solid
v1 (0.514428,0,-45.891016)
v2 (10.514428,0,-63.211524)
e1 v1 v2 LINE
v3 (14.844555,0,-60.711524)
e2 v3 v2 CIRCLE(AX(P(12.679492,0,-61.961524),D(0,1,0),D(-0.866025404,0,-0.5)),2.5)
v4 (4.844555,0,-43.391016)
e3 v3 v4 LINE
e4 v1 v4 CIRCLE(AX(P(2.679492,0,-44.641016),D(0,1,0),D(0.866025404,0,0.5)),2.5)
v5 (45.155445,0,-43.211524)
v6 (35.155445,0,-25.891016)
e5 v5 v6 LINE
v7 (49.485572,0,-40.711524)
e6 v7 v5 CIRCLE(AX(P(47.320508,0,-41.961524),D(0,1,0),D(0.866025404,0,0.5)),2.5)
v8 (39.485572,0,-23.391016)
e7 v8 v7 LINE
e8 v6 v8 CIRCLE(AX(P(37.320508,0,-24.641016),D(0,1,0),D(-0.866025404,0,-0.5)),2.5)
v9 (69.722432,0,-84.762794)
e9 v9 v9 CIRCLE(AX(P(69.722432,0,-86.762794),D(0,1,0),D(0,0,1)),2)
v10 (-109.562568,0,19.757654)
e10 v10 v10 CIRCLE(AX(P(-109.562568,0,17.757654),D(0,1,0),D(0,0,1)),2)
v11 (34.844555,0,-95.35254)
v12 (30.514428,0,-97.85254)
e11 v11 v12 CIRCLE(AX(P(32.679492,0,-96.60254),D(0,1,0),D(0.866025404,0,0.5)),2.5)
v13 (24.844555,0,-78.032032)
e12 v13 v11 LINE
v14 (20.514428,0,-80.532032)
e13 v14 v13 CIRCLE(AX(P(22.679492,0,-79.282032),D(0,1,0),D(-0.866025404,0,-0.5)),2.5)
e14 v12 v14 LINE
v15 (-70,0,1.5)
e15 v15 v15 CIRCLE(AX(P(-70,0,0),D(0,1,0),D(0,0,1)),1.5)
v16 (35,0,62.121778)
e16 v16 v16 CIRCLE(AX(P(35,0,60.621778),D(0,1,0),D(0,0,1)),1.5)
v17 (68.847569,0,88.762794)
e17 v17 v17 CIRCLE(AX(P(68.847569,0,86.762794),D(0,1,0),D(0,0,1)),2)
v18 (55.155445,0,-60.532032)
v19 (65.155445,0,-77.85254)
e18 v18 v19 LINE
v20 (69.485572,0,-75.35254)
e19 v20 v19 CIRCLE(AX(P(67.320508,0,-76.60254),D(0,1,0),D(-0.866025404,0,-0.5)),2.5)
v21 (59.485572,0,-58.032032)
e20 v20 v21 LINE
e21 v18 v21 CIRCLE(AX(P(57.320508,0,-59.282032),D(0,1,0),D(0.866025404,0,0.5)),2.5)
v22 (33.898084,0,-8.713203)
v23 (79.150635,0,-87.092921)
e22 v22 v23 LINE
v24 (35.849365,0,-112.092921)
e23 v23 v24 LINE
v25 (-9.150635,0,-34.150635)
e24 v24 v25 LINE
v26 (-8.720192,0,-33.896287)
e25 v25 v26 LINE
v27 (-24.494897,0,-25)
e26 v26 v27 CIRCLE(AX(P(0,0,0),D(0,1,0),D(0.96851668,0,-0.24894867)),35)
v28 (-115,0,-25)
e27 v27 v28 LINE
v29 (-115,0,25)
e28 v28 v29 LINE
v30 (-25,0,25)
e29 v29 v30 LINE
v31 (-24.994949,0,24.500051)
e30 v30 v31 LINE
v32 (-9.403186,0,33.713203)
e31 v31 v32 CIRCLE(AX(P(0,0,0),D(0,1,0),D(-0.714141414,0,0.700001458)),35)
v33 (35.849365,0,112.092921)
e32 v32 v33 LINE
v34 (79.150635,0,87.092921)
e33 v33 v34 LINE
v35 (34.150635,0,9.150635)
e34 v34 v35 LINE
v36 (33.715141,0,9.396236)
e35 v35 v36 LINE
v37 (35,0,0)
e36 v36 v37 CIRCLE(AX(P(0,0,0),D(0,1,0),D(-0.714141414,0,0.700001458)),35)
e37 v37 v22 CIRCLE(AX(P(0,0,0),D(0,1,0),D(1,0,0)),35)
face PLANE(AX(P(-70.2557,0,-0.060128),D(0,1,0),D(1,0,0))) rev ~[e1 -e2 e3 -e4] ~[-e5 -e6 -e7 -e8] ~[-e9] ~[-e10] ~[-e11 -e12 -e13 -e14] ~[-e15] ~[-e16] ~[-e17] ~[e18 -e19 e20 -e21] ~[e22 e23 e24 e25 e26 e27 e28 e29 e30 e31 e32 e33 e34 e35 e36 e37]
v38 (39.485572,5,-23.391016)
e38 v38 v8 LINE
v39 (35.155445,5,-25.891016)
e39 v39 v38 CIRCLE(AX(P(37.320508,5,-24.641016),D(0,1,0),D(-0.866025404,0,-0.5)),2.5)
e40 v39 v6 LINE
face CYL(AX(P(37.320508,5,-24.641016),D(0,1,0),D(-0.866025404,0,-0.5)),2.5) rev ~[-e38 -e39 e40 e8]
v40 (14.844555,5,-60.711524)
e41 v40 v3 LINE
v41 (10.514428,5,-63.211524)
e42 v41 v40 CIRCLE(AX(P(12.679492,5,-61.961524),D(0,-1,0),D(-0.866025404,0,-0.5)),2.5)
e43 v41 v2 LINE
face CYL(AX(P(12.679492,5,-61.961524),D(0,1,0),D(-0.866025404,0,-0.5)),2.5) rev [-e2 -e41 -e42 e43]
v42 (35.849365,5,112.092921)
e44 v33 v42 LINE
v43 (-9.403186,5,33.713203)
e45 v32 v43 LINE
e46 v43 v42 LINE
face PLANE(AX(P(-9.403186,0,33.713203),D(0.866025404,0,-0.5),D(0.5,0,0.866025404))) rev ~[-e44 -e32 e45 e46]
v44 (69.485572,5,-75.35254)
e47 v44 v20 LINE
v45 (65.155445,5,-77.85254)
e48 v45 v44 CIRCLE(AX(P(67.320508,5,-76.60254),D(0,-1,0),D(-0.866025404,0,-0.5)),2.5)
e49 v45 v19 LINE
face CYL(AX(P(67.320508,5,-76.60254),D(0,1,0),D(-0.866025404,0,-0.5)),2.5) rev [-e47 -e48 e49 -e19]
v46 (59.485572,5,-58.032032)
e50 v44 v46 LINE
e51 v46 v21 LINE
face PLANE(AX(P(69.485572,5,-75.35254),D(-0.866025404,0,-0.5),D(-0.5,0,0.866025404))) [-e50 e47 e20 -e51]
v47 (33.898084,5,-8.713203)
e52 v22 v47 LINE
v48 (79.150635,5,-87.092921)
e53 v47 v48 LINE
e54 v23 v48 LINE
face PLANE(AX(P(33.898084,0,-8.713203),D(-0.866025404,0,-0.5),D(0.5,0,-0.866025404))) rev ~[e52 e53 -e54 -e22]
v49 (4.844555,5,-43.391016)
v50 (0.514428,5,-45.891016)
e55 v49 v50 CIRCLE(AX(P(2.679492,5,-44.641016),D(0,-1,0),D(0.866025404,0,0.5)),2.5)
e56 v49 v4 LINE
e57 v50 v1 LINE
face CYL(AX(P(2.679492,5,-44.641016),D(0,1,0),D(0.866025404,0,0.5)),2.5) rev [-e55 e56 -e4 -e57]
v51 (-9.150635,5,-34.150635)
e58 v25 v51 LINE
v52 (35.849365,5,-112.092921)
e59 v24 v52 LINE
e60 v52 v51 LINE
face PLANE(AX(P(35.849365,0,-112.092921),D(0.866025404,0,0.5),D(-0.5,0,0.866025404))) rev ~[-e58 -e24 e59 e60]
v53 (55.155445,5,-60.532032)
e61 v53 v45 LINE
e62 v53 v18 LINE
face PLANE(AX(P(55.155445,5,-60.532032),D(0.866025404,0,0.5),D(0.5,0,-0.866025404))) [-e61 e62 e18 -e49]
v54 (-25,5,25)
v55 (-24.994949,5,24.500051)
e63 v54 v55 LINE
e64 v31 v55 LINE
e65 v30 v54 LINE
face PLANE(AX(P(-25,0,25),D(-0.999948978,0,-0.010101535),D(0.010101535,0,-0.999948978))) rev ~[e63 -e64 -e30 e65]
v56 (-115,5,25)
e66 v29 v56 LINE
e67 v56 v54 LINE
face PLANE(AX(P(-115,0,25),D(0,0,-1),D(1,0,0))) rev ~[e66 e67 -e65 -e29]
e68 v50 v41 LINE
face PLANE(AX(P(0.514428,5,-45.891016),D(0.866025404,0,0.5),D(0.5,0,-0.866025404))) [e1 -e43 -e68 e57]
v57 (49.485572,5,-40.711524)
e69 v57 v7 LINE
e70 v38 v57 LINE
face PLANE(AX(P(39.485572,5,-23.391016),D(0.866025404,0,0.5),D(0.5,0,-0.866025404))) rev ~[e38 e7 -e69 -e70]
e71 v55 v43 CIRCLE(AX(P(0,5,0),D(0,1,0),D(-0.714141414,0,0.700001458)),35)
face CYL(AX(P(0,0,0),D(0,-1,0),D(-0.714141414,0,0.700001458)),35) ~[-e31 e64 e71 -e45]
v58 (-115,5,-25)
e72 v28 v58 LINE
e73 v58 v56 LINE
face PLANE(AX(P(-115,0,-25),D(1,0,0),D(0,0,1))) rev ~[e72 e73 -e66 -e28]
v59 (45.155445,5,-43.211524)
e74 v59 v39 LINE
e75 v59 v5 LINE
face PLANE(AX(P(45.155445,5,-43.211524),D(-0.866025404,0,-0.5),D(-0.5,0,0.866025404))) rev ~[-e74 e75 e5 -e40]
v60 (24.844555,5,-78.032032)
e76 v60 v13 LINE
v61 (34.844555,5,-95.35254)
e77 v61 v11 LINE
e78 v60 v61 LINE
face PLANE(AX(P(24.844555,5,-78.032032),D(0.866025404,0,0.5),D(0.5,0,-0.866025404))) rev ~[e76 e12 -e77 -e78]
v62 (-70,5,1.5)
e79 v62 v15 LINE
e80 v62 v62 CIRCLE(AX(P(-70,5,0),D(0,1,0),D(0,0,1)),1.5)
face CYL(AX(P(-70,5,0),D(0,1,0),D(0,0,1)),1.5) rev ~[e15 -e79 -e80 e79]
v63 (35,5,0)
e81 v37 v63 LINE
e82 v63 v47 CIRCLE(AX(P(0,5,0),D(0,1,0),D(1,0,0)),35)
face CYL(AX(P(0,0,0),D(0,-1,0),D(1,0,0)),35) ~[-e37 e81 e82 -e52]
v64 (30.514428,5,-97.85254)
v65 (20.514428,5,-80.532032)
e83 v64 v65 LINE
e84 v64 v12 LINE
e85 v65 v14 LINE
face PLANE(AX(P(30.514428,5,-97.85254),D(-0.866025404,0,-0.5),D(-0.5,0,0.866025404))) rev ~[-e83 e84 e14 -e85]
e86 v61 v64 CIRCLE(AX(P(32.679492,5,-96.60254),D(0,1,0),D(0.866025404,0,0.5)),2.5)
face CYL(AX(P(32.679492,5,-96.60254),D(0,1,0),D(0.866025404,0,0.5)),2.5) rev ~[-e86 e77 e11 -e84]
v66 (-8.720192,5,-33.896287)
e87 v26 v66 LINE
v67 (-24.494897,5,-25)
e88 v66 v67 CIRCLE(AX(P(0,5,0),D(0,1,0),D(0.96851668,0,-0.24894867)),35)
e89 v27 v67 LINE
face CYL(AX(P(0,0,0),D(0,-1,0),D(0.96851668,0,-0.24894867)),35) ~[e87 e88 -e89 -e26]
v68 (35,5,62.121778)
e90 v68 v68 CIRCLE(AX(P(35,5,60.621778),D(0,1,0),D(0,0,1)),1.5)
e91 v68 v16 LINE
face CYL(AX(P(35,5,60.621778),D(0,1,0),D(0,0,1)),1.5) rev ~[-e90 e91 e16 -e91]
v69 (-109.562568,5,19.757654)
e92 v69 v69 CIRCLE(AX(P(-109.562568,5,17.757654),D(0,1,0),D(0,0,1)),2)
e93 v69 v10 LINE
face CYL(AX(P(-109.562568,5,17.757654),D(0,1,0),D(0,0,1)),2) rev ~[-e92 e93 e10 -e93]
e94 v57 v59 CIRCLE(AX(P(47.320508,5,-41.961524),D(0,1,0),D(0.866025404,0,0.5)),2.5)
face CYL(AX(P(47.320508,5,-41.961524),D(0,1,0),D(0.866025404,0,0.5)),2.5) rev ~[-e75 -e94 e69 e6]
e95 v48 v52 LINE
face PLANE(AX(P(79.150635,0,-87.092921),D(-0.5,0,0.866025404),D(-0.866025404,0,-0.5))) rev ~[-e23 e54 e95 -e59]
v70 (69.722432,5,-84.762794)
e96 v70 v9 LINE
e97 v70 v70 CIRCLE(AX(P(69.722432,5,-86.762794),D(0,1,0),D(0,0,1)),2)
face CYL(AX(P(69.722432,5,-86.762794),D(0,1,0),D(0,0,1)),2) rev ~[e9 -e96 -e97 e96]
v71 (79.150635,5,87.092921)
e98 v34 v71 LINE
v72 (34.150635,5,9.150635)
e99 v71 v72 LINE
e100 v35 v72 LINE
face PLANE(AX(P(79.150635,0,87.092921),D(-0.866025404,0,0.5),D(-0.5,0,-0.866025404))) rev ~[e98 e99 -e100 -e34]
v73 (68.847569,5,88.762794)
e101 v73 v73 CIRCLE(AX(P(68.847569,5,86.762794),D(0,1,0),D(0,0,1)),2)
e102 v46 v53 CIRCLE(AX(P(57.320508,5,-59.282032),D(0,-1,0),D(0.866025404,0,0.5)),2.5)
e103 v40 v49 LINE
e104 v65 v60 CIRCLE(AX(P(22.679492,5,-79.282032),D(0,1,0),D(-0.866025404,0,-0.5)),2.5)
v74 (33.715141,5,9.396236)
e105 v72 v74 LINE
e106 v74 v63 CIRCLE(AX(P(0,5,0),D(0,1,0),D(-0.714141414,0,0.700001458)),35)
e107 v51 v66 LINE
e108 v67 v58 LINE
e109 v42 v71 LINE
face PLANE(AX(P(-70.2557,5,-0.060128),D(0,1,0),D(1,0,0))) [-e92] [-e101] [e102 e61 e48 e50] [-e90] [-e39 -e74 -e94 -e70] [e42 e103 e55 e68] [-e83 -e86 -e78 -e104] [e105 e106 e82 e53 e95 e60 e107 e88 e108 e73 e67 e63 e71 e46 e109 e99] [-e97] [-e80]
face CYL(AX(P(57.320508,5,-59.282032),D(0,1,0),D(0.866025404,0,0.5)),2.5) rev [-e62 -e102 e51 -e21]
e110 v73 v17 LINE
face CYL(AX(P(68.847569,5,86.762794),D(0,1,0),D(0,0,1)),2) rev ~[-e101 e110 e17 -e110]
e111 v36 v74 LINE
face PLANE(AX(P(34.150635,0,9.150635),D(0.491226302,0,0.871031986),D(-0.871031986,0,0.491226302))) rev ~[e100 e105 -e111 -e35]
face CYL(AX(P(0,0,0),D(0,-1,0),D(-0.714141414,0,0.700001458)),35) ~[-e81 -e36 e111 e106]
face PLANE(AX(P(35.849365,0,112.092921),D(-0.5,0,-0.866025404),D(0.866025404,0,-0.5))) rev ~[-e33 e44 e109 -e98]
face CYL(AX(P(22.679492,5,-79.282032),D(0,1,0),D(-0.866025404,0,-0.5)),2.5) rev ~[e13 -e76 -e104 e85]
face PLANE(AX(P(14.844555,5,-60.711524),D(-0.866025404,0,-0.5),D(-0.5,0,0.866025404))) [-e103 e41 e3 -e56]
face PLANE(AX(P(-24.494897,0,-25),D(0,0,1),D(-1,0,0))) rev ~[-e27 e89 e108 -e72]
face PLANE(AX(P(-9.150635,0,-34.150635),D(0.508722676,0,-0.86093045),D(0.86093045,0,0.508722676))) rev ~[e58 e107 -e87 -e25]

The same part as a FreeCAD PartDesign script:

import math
import FreeCAD as App
import Part
import Sketcher
Q = App.Units.Quantity

doc = App.newDocument("Part")
body = doc.addObject("PartDesign::Body", "Body")

sketch1 = body.newObject("Sketcher::SketchObject", "Sketch")
sketch1.AttachmentSupport = (doc.getObject("XZ_Plane"), [""])
sketch1.MapMode = "FlatFace"
sketch1.addGeometry(Part.LineSegment(App.Vector(-115, -25, 0), App.Vector(-115, 25, 0)), False)
sketch1.addGeometry(Part.LineSegment(App.Vector(-115, 25, 0), App.Vector(-25, 25, 0)), False)
sketch1.addGeometry(Part.LineSegment(App.Vector(-25, 25, 0), App.Vector(-24.99, 24.5, 0)), False)
sketch1.addGeometry(Part.ArcOfCircle(Part.Circle(App.Vector(0, 0, 0), App.Vector(0, 0, 1), 35), math.radians(106), math.radians(136)), False)
sketch1.addGeometry(Part.LineSegment(App.Vector(-9.4, 33.71, 0), App.Vector(35.85, 112.09, 0)), False)
sketch1.addGeometry(Part.LineSegment(App.Vector(35.85, 112.09, 0), App.Vector(79.15, 87.09, 0)), False)
sketch1.addGeometry(Part.LineSegment(App.Vector(79.15, 87.09, 0), App.Vector(34.15, 9.15, 0)), False)
sketch1.addGeometry(Part.LineSegment(App.Vector(34.15, 9.15, 0), App.Vector(33.72, 9.4, 0)), False)
sketch1.addGeometry(Part.ArcOfCircle(Part.Circle(App.Vector(0, 0, 0), App.Vector(0, 0, 1), 35), math.radians(0), math.radians(15.57)), False)
sketch1.addGeometry(Part.ArcOfCircle(Part.Circle(App.Vector(0, 0, 0), App.Vector(0, 0, 1), 35), math.radians(-14.42), math.radians(0)), False)
sketch1.addGeometry(Part.LineSegment(App.Vector(33.9, -8.71, 0), App.Vector(79.15, -87.09, 0)), False)
sketch1.addGeometry(Part.LineSegment(App.Vector(79.15, -87.09, 0), App.Vector(35.85, -112.09, 0)), False)
sketch1.addGeometry(Part.LineSegment(App.Vector(35.85, -112.09, 0), App.Vector(-9.15, -34.15, 0)), False)
sketch1.addGeometry(Part.LineSegment(App.Vector(-9.15, -34.15, 0), App.Vector(-8.72, -33.9, 0)), False)
sketch1.addGeometry(Part.ArcOfCircle(Part.Circle(App.Vector(0, 0, 0), App.Vector(0, 0, 1), 35), math.radians(-134), math.radians(-104)), False)
sketch1.addGeometry(Part.LineSegment(App.Vector(-24.49, -25, 0), App.Vector(-115, -25, 0)), False)
sketch1.addConstraint(Sketcher.Constraint("Coincident", 0, 2, 1, 1))
sketch1.addConstraint(Sketcher.Constraint("Coincident", 1, 2, 2, 1))
sketch1.addConstraint(Sketcher.Constraint("Coincident", 2, 2, 3, 2))
sketch1.addConstraint(Sketcher.Constraint("Coincident", 3, 1, 4, 1))
sketch1.addConstraint(Sketcher.Constraint("Coincident", 4, 2, 5, 1))
sketch1.addConstraint(Sketcher.Constraint("Coincident", 5, 2, 6, 1))
sketch1.addConstraint(Sketcher.Constraint("Coincident", 6, 2, 7, 1))
sketch1.addConstraint(Sketcher.Constraint("Coincident", 7, 2, 8, 2))
sketch1.addConstraint(Sketcher.Constraint("Tangent", 8, 1, 9, 2))
sketch1.addConstraint(Sketcher.Constraint("Coincident", 9, 1, 10, 1))
sketch1.addConstraint(Sketcher.Constraint("Coincident", 10, 2, 11, 1))
sketch1.addConstraint(Sketcher.Constraint("Coincident", 11, 2, 12, 1))
sketch1.addConstraint(Sketcher.Constraint("Coincident", 12, 2, 13, 1))
sketch1.addConstraint(Sketcher.Constraint("Coincident", 13, 2, 14, 2))
sketch1.addConstraint(Sketcher.Constraint("Coincident", 14, 1, 15, 1))
sketch1.addConstraint(Sketcher.Constraint("Coincident", 15, 2, 0, 1))
sketch1.addConstraint(Sketcher.Constraint("Vertical", 0))
sketch1.addConstraint(Sketcher.Constraint("Horizontal", 1))
sketch1.addConstraint(Sketcher.Constraint("Horizontal", 15))
sketch1.addConstraint(Sketcher.Constraint("Coincident", 3, 3, -1, 1))
sketch1.addConstraint(Sketcher.Constraint("Coincident", 8, 3, -1, 1))
sketch1.addConstraint(Sketcher.Constraint("Coincident", 14, 3, -1, 1))
sketch1.addConstraint(Sketcher.Constraint("Equal", 3, 8))
sketch1.addConstraint(Sketcher.Constraint("Equal", 8, 9))
sketch1.addConstraint(Sketcher.Constraint("Equal", 9, 14))
sketch1.addConstraint(Sketcher.Constraint("Symmetric", 5, 2, 10, 2, -1))
sketch1.addConstraint(Sketcher.Constraint("Symmetric", 4, 2, 11, 2, -1))
sketch1.addConstraint(Sketcher.Constraint("PointOnObject", 8, 1, -1))
sketch1.addConstraint(Sketcher.Constraint("Perpendicular", 4, 5))
sketch1.addConstraint(Sketcher.Constraint("Perpendicular", 5, 6))
sketch1.addConstraint(Sketcher.Constraint("Perpendicular", 10, 11))
sketch1.addConstraint(Sketcher.Constraint("Perpendicular", 11, 12))
sketch1.addConstraint(Sketcher.Constraint("Equal", 2, 7))
sketch1.addConstraint(Sketcher.Constraint("Equal", 4, 10))
sketch1.addConstraint(Sketcher.Constraint("Equal", 6, 12))
sketch1.addConstraint(Sketcher.Constraint("Equal", 7, 13))
sketch1.addConstraint(Sketcher.Constraint("Radius", 3, Q("35 mm")))
sketch1.addConstraint(Sketcher.Constraint("DistanceX", 1, 1, 1, 2, Q("90 mm")))
sketch1.addConstraint(Sketcher.Constraint("DistanceY", 0, 1, 0, 2, Q("50 mm")))
sketch1.addConstraint(Sketcher.Constraint("Angle", 4, Q("60 deg")))
sketch1.addConstraint(Sketcher.Constraint("Distance", 5, Q("50 mm")))
sketch1.addConstraint(Sketcher.Constraint("Distance", 6, Q("90 mm")))
sketch1.addConstraint(Sketcher.Constraint("DistanceX", 0, 2, -1, 1, Q("115 mm")))
sketch1.addConstraint(Sketcher.Constraint("DistanceY", -1, 1, 0, 2, Q("25 mm")))
sketch1.addConstraint(Sketcher.Constraint("DistanceY", 6, 2, 7, 2, Q("0.245601 mm")))
sketch1.addConstraint(Sketcher.Constraint("DistanceX", 2, 2, -1, 1, Q("24.994949 mm")))
pad1 = body.newObject("PartDesign::Pad", "Pad")
pad1.Profile = sketch1
pad1.Length = 5
pad1.Reversed = True

sketch2 = body.newObject("Sketcher::SketchObject", "Sketch001")
sketch2.AttachmentSupport = (doc.getObject("XZ_Plane"), [""])
sketch2.MapMode = "FlatFace"
sketch2.AttachmentOffset = App.Placement(App.Vector(0, 0, -5), App.Rotation())
sketch2.addGeometry(Part.LineSegment(App.Vector(30.5, -97.9, 0), App.Vector(20.5, -80.5, 0)), False)
sketch2.addGeometry(Part.ArcOfCircle(Part.Circle(App.Vector(22.7, -79.3, 0), App.Vector(0, 0, 1), 2.5), math.radians(30), math.radians(210)), False)
sketch2.addGeometry(Part.LineSegment(App.Vector(24.8, -78, 0), App.Vector(34.8, -95.4, 0)), False)
sketch2.addGeometry(Part.ArcOfCircle(Part.Circle(App.Vector(32.7, -96.6, 0), App.Vector(0, 0, 1), 2.5), math.radians(-150), math.radians(30)), False)
sketch2.addGeometry(Part.ArcOfCircle(Part.Circle(App.Vector(12.7, -62, 0), App.Vector(0, 0, 1), 2.5), math.radians(-150), math.radians(30)), False)
sketch2.addGeometry(Part.LineSegment(App.Vector(10.5, -63.2, 0), App.Vector(0.5, -45.9, 0)), False)
sketch2.addGeometry(Part.ArcOfCircle(Part.Circle(App.Vector(2.7, -44.6, 0), App.Vector(0, 0, 1), 2.5), math.radians(30), math.radians(210)), False)
sketch2.addGeometry(Part.LineSegment(App.Vector(4.8, -43.4, 0), App.Vector(14.8, -60.7, 0)), False)
sketch2.addGeometry(Part.ArcOfCircle(Part.Circle(App.Vector(67.3, -76.6, 0), App.Vector(0, 0, 1), 2.5), math.radians(-150), math.radians(30)), False)
sketch2.addGeometry(Part.LineSegment(App.Vector(65.2, -77.9, 0), App.Vector(55.2, -60.5, 0)), False)
sketch2.addGeometry(Part.ArcOfCircle(Part.Circle(App.Vector(57.3, -59.3, 0), App.Vector(0, 0, 1), 2.5), math.radians(30), math.radians(210)), False)
sketch2.addGeometry(Part.LineSegment(App.Vector(59.5, -58, 0), App.Vector(69.5, -75.4, 0)), False)
sketch2.addGeometry(Part.LineSegment(App.Vector(45.2, -43.2, 0), App.Vector(35.2, -25.9, 0)), False)
sketch2.addGeometry(Part.ArcOfCircle(Part.Circle(App.Vector(37.3, -24.6, 0), App.Vector(0, 0, 1), 2.5), math.radians(30), math.radians(210)), False)
sketch2.addGeometry(Part.LineSegment(App.Vector(39.5, -23.4, 0), App.Vector(49.5, -40.7, 0)), False)
sketch2.addGeometry(Part.ArcOfCircle(Part.Circle(App.Vector(47.3, -42, 0), App.Vector(0, 0, 1), 2.5), math.radians(-150), math.radians(30)), False)
sketch2.addGeometry(Part.Circle(App.Vector(35, 60.6, 0), App.Vector(0, 0, 1), 1.5), False)
sketch2.addGeometry(Part.Circle(App.Vector(-70, 0, 0), App.Vector(0, 0, 1), 1.5), False)
sketch2.addConstraint(Sketcher.Constraint("Tangent", 0, 2, 1, 2))
sketch2.addConstraint(Sketcher.Constraint("Tangent", 1, 1, 2, 1))
sketch2.addConstraint(Sketcher.Constraint("Tangent", 2, 2, 3, 2))
sketch2.addConstraint(Sketcher.Constraint("Tangent", 3, 1, 0, 1))
sketch2.addConstraint(Sketcher.Constraint("Tangent", 4, 1, 5, 1))
sketch2.addConstraint(Sketcher.Constraint("Tangent", 5, 2, 6, 2))
sketch2.addConstraint(Sketcher.Constraint("Tangent", 6, 1, 7, 1))
sketch2.addConstraint(Sketcher.Constraint("Tangent", 7, 2, 4, 2))
sketch2.addConstraint(Sketcher.Constraint("Tangent", 8, 1, 9, 1))
sketch2.addConstraint(Sketcher.Constraint("Tangent", 9, 2, 10, 2))
sketch2.addConstraint(Sketcher.Constraint("Tangent", 10, 1, 11, 1))
sketch2.addConstraint(Sketcher.Constraint("Tangent", 11, 2, 8, 2))
sketch2.addConstraint(Sketcher.Constraint("Tangent", 12, 2, 13, 2))
sketch2.addConstraint(Sketcher.Constraint("Tangent", 13, 1, 14, 1))
sketch2.addConstraint(Sketcher.Constraint("Tangent", 14, 2, 15, 2))
sketch2.addConstraint(Sketcher.Constraint("Tangent", 15, 1, 12, 1))
sketch2.addConstraint(Sketcher.Constraint("Equal", 1, 3))
sketch2.addConstraint(Sketcher.Constraint("Equal", 3, 4))
sketch2.addConstraint(Sketcher.Constraint("Equal", 4, 6))
sketch2.addConstraint(Sketcher.Constraint("Equal", 6, 8))
sketch2.addConstraint(Sketcher.Constraint("Equal", 8, 10))
sketch2.addConstraint(Sketcher.Constraint("Equal", 10, 13))
sketch2.addConstraint(Sketcher.Constraint("Equal", 13, 15))
sketch2.addConstraint(Sketcher.Constraint("Equal", 16, 17))
sketch2.addConstraint(Sketcher.Constraint("PointOnObject", 17, 3, -1))
sketch2.addConstraint(Sketcher.Constraint("Parallel", 2, 5))
sketch2.addConstraint(Sketcher.Constraint("Parallel", 7, 9))
sketch2.addConstraint(Sketcher.Constraint("Parallel", 11, 12))
sketch2.addConstraint(Sketcher.Constraint("Equal", 2, 5))
sketch2.addConstraint(Sketcher.Constraint("Equal", 7, 9))
sketch2.addConstraint(Sketcher.Constraint("Equal", 11, 12))
sketch2.addConstraint(Sketcher.Constraint("Diameter", 16, Q("3 mm")))
sketch2.addConstraint(Sketcher.Constraint("Radius", 1, Q("2.5 mm")))
sketch2.addConstraint(Sketcher.Constraint("Angle", 0, Q("120 deg")))
sketch2.addConstraint(Sketcher.Constraint("Distance", 0, Q("20 mm")))
sketch2.addConstraint(Sketcher.Constraint("DistanceX", -1, 1, 16, 3, Q("35 mm")))
sketch2.addConstraint(Sketcher.Constraint("DistanceX", 17, 3, -1, 1, Q("70 mm")))
sketch2.addConstraint(Sketcher.Constraint("DistanceX", 4, 3, 1, 3, Q("10 mm")))
sketch2.addConstraint(Sketcher.Constraint("DistanceY", 3, 3, 8, 3, Q("20 mm")))
sketch2.addConstraint(Sketcher.Constraint("DistanceX", 13, 3, 10, 3, Q("20 mm")))
sketch2.addConstraint(Sketcher.Constraint("DistanceY", 6, 3, 13, 3, Q("20 mm")))
sketch2.addConstraint(Sketcher.Constraint("DistanceX", -1, 1, 1, 3, Q("22.679492 mm")))
sketch2.addConstraint(Sketcher.Constraint("DistanceY", 3, 3, -1, 1, Q("96.60254 mm")))
sketch2.addConstraint(Sketcher.Constraint("DistanceX", -1, 1, 8, 3, Q("67.320508 mm")))
sketch2.addConstraint(Sketcher.Constraint("DistanceY", -1, 1, 16, 3, Q("60.621778 mm")))
sketch2.addConstraint(Sketcher.Constraint("DistanceY", 1, 3, 4, 3, Q("17.320508 mm")))
pocket1 = body.newObject("PartDesign::Pocket", "Pocket")
pocket1.Profile = sketch2
pocket1.Type = "ThroughAll"
pocket1.Reversed = True

sketch3 = body.newObject("Sketcher::SketchObject", "Sketch002")
sketch3.AttachmentSupport = (doc.getObject("XZ_Plane"), [""])
sketch3.MapMode = "FlatFace"
sketch3.AttachmentOffset = App.Placement(App.Vector(0, 0, -5), App.Rotation())
sketch3.addGeometry(Part.Circle(App.Vector(69.7, -86.8, 0), App.Vector(0, 0, 1), 2), False)
sketch3.addGeometry(Part.Circle(App.Vector(-109.6, 17.8, 0), App.Vector(0, 0, 1), 2), False)
sketch3.addGeometry(Part.Circle(App.Vector(68.8, 86.8, 0), App.Vector(0, 0, 1), 2), False)
sketch3.addConstraint(Sketcher.Constraint("Equal", 0, 1))
sketch3.addConstraint(Sketcher.Constraint("Equal", 1, 2))
sketch3.addConstraint(Sketcher.Constraint("Diameter", 0, Q("4 mm")))
sketch3.addConstraint(Sketcher.Constraint("DistanceX", 1, 3, 0, 3, Q("179.285 mm")))
sketch3.addConstraint(Sketcher.Constraint("DistanceX", -1, 1, 0, 3, Q("69.722432 mm")))
sketch3.addConstraint(Sketcher.Constraint("DistanceX", -1, 1, 2, 3, Q("68.847569 mm")))
sketch3.addConstraint(Sketcher.Constraint("DistanceY", 0, 3, 1, 3, Q("104.520448 mm")))
sketch3.addConstraint(Sketcher.Constraint("DistanceY", 0, 3, 2, 3, Q("173.525589 mm")))
sketch3.addConstraint(Sketcher.Constraint("DistanceY", 0, 3, -1, 1, Q("86.762794 mm")))
pocket2 = body.newObject("PartDesign::Pocket", "Pocket001")
pocket2.Profile = sketch3
pocket2.Length = 10
pocket2.Reversed = True

doc.recompute()
